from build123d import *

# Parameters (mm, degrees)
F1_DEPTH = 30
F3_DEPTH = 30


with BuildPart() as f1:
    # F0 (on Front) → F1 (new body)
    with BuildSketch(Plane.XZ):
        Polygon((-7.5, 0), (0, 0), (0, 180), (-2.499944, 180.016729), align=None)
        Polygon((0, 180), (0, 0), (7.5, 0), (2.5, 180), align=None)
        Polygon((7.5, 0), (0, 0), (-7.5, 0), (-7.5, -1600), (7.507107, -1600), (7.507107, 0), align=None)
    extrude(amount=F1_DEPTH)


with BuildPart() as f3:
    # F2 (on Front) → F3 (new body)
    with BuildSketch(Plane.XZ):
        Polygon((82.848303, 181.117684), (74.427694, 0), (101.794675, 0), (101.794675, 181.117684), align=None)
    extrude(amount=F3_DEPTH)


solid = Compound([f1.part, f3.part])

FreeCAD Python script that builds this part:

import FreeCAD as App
import Part
import Sketcher

V = App.Vector
Q = App.Units.Quantity


def add_polygon(sketch, points):
    """Adds a closed chain of lines whose ends are joined by coincident constraints."""
    first, n = sketch.GeometryCount, len(points)
    for a, b in zip(points, points[1:] + points[:1]):
        sketch.addGeometry(Part.LineSegment(App.Vector(*a, 0), App.Vector(*b, 0)), False)
    for i in range(n):
        sketch.addConstraint(Sketcher.Constraint("Coincident", first + i, 2, first + (i + 1) % n, 1))

doc = App.newDocument("Part")
params = doc.addObject("Spreadsheet::Sheet", "Params")
for row, (alias, value) in enumerate([
    ("sketch1_height", "1600 mm"),
    ("sketch1_width", "2.5 mm"),
    ("sketch1_length", "2.5 mm"),
    ("pad1_length", "30 mm"),
    ("pad2_length", "30 mm"),
], start=1):
    params.set(f"A{row}", alias)
    params.set(f"B{row}", "=" + value)
    params.setAlias(f"B{row}", alias)

body = doc.addObject("PartDesign::Body", "Body")

# Sketch on XZ plane
sketch1 = body.newObject("Sketcher::SketchObject", "Sketch")
sketch1.AttachmentSupport = (doc.getObject("XZ_Plane"), [""])
sketch1.MapMode = "FlatFace"
add_polygon(sketch1, [(7.5, 0), (2.5, 180), (0, 180), (-2.499944, 180.016729), (-7.5, 0), (-7.5, -1600), (7.507107, -1600), (7.507107, 0)])  # lines 0-7
sketch1.addConstraint([
    Sketcher.Constraint("Horizontal", 1),
    Sketcher.Constraint("Vertical", 4),
    Sketcher.Constraint("Horizontal", 5),
    Sketcher.Constraint("Vertical", 6),
    Sketcher.Constraint("Horizontal", 7),
    Sketcher.Constraint("Symmetric", 3, 2, 7, 2, -1, 1),
    Sketcher.Constraint("PointOnObject", 1, 2, -2),
    Sketcher.Constraint("PointOnObject", 3, 2, -1),
    Sketcher.Constraint("DistanceY", 4, 2, 4, 1, Q("1600 mm")),
    Sketcher.Constraint("DistanceX", 1, 2, 1, 1, Q("2.5 mm")),
    Sketcher.Constraint("DistanceY", -1, 1, 0, 2, Q("180 mm")),
    Sketcher.Constraint("DistanceX", 3, 2, 0, 2, Q("10 mm")),
    Sketcher.Constraint("Distance", 2, Q("2.5 mm")),
    Sketcher.Constraint("DistanceX", 5, 1, 5, 2, Q("15.007107 mm")),
    Sketcher.Constraint("DistanceY", -1, 1, 2, 2, Q("180.016729 mm")),
])
sketch1.setExpression("Constraints[16]", "Params.sketch1_height")
sketch1.setExpression("Constraints[17]", "Params.sketch1_width")
sketch1.setExpression("Constraints[20]", "Params.sketch1_length")
pad1 = body.newObject("PartDesign::Pad", "Pad")
pad1.Profile = sketch1
pad1.setExpression("Length", "Params.pad1_length")
body2 = doc.addObject("PartDesign::Body", "Body001")

# Sketch on XZ plane
sketch2 = body2.newObject("Sketcher::SketchObject", "Sketch001")
sketch2.AttachmentSupport = (doc.getObject("XZ_Plane001"), [""])
sketch2.MapMode = "FlatFace"
add_polygon(sketch2, [(82.848303, 181.117684), (74.427694, 0), (101.794675, 0), (101.794675, 181.117684)])  # lines 0-3
sketch2.addConstraint([
    Sketcher.Constraint("Horizontal", 1),
    Sketcher.Constraint("Vertical", 2),
    Sketcher.Constraint("Horizontal", 3),
    Sketcher.Constraint("PointOnObject", 0, 2, -1),
    Sketcher.Constraint("DistanceX", 1, 1, 1, 2, Q("27.366981 mm")),
    Sketcher.Constraint("DistanceX", 3, 2, 3, 1, Q("18.946372 mm")),
    Sketcher.Constraint("DistanceY", 2, 1, 2, 2, Q("181.117684 mm")),
    Sketcher.Constraint("DistanceX", -1, 1, 0, 2, Q("74.427694 mm")),
])
pad2 = body2.newObject("PartDesign::Pad", "Pad001")
pad2.Profile = sketch2
pad2.setExpression("Length", "Params.pad2_length")

doc.recompute()
